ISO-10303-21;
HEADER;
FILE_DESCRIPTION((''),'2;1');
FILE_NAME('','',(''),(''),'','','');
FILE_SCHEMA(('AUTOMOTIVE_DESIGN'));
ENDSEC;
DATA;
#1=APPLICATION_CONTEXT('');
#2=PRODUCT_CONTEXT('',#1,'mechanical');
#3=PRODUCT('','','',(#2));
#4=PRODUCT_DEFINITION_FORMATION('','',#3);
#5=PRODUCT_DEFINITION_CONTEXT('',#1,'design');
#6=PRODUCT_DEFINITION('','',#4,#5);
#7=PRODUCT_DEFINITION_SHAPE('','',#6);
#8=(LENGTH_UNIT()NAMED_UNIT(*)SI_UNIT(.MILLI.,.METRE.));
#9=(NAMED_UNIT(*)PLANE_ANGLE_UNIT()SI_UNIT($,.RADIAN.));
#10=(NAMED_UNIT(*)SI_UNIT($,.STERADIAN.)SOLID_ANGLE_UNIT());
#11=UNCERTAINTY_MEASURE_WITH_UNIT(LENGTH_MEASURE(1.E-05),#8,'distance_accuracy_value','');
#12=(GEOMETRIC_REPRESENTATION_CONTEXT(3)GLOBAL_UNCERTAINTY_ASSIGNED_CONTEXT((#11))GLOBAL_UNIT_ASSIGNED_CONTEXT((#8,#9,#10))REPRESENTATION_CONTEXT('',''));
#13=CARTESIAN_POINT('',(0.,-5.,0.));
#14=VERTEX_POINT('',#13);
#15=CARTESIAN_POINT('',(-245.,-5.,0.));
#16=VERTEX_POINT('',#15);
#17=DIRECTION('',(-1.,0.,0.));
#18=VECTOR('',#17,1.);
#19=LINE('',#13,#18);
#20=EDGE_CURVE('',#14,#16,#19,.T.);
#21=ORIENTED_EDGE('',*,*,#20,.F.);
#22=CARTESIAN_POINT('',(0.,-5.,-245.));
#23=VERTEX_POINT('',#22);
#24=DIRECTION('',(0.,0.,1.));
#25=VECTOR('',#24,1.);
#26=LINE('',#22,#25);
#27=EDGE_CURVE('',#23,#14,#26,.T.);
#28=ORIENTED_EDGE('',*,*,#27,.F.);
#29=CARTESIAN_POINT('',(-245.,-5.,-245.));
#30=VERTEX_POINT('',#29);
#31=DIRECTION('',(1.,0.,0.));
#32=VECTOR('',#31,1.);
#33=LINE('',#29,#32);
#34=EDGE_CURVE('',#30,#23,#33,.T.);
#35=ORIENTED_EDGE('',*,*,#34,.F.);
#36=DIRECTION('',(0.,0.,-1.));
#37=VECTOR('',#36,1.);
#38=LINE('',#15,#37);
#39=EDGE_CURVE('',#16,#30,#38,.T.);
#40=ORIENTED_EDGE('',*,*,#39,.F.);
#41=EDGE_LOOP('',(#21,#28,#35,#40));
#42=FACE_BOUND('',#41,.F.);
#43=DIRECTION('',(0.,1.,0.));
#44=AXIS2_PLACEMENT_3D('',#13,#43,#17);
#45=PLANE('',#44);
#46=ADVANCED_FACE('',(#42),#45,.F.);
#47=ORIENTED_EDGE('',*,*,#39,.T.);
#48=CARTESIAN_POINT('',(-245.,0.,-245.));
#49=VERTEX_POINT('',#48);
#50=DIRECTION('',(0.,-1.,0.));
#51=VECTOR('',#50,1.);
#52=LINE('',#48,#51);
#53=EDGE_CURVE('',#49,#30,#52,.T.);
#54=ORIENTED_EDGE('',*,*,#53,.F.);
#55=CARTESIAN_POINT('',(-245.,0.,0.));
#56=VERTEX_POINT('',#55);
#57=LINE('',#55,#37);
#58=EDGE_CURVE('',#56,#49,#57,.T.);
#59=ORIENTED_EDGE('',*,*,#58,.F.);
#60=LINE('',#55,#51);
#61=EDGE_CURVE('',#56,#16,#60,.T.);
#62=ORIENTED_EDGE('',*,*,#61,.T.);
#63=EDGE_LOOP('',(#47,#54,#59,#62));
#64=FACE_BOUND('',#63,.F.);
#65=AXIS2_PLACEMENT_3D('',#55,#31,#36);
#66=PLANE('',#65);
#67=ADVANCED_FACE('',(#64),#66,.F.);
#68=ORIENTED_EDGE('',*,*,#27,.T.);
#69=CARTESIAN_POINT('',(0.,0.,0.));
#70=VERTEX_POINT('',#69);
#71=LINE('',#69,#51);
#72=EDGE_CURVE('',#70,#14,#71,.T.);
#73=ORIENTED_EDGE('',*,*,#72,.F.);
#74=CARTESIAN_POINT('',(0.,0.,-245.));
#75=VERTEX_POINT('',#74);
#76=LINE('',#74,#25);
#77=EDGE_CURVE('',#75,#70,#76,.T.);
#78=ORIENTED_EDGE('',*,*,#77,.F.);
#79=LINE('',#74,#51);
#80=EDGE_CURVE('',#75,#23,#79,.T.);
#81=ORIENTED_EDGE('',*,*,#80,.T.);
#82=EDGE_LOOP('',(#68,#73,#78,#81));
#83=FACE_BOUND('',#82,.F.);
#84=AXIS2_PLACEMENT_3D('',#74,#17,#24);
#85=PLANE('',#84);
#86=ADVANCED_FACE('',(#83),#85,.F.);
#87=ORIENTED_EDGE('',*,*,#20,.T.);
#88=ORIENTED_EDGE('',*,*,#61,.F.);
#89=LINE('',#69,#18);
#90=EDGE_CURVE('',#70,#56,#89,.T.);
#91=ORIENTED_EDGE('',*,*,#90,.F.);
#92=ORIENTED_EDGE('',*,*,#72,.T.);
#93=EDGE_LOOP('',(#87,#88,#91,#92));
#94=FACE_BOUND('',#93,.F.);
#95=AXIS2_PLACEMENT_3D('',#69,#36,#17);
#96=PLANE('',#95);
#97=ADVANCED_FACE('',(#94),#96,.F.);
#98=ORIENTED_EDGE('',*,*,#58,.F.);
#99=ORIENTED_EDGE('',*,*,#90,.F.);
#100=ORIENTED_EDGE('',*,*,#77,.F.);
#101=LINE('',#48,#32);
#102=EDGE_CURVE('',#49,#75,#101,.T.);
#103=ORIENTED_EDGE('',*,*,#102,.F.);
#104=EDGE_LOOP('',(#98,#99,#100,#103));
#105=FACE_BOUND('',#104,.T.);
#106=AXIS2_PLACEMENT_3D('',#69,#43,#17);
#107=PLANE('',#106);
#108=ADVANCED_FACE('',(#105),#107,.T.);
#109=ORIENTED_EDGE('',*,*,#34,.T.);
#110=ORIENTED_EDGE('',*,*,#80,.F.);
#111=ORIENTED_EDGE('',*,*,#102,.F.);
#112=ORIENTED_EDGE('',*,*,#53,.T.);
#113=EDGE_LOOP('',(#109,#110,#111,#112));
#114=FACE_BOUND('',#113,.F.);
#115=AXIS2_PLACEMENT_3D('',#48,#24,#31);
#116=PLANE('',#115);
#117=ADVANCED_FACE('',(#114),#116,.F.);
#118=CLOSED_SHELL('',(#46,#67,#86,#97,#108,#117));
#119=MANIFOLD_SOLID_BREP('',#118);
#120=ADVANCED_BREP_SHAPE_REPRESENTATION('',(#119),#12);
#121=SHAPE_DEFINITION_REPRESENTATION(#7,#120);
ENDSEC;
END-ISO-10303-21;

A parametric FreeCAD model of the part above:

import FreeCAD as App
import Part
import Sketcher
from FreeCAD import Vector

doc = App.newDocument("Part")
body = doc.addObject("PartDesign::Body", "Body")

sketch1 = body.newObject("Sketcher::SketchObject", "Sketch")
sketch1.AttachmentSupport = (doc.getObject("XZ_Plane"), [""])
sketch1.MapMode = "FlatFace"
sketch1.addGeometry([
    Part.LineSegment(Vector(-245, 0, 0), Vector(0, 0, 0)),
    Part.LineSegment(Vector(0, 0, 0), Vector(0, -245, 0)),
    Part.LineSegment(Vector(0, -245, 0), Vector(-245, -245, 0)),
    Part.LineSegment(Vector(-245, -245, 0), Vector(-245, 0, 0)),
], False)
sketch1.addConstraint([
    Sketcher.Constraint("Coincident", 0, 2, 1, 1),
    Sketcher.Constraint("Coincident", 1, 2, 2, 1),
    Sketcher.Constraint("Coincident", 2, 2, 3, 1),
    Sketcher.Constraint("Coincident", 3, 2, 0, 1),
    Sketcher.Constraint("Horizontal", 0),
    Sketcher.Constraint("Vertical", 1),
    Sketcher.Constraint("Horizontal", 2),
    Sketcher.Constraint("Vertical", 3),
    Sketcher.Constraint("Coincident", 0, 2, -1, 1),
    Sketcher.Constraint("Equal", 2, 1),
    Sketcher.Constraint("DistanceX", 0, 1, 0, 2, 245.0),
])
pad1 = body.newObject("PartDesign::Pad", "Pad")
pad1.Profile = sketch1
pad1.Length = 5

doc.recompute()
